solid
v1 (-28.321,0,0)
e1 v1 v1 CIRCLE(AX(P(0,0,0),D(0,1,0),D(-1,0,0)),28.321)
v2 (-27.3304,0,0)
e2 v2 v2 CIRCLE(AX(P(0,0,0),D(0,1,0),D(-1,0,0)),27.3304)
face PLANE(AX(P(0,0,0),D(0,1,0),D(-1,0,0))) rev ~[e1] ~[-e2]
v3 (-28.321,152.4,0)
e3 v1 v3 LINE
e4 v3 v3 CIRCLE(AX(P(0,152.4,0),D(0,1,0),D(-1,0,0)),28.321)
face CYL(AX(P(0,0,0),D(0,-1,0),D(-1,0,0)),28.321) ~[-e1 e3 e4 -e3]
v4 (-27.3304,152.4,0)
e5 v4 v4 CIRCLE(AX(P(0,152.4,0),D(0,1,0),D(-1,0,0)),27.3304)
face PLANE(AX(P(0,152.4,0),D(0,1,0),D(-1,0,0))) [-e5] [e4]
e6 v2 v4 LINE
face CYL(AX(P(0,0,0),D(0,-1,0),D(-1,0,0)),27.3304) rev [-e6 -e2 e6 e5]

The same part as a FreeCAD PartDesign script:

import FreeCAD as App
import Part
import Sketcher
from FreeCAD import Vector
Q = App.Units.Quantity

doc = App.newDocument("Part")
params = doc.addObject("Spreadsheet::Sheet", "Params")
for row, (alias, value) in enumerate([
    ("sketch1_diameter", "2.23 in"),
    ("sketch1_diameter2", "2.152 in"),
    ("pad1_length", "6 in"),
], start=1):
    params.set(f"A{row}", alias)
    params.set(f"B{row}", "=" + value)
    params.setAlias(f"B{row}", alias)

body = doc.addObject("PartDesign::Body", "Body")

# Sketch on XZ plane
sketch1 = body.newObject("Sketcher::SketchObject", "Sketch")
sketch1.AttachmentSupport = (doc.getObject("XZ_Plane"), [""])
sketch1.MapMode = "FlatFace"
sketch1.addGeometry(Part.Circle(Vector(0, 0, 0), Vector(0, 0, 1), 28.321), False)
sketch1.addGeometry(Part.Circle(Vector(0, 0, 0), Vector(0, 0, 1), 27.3304), False)
sketch1.addConstraint(Sketcher.Constraint("Coincident", 0, 3, -1, 1))
sketch1.addConstraint(Sketcher.Constraint("Coincident", 1, 3, -1, 1))
sketch1.addConstraint(Sketcher.Constraint("Diameter", 0, Q("2.23 in")))
sketch1.addConstraint(Sketcher.Constraint("Diameter", 1, Q("2.152 in")))
sketch1.setExpression("Constraints[2]", "Params.sketch1_diameter")
sketch1.setExpression("Constraints[3]", "Params.sketch1_diameter2")
pad1 = body.newObject("PartDesign::Pad", "Pad")
pad1.Profile = sketch1
pad1.setExpression("Length", "Params.pad1_length")
pad1.Reversed = True

doc.recompute()
